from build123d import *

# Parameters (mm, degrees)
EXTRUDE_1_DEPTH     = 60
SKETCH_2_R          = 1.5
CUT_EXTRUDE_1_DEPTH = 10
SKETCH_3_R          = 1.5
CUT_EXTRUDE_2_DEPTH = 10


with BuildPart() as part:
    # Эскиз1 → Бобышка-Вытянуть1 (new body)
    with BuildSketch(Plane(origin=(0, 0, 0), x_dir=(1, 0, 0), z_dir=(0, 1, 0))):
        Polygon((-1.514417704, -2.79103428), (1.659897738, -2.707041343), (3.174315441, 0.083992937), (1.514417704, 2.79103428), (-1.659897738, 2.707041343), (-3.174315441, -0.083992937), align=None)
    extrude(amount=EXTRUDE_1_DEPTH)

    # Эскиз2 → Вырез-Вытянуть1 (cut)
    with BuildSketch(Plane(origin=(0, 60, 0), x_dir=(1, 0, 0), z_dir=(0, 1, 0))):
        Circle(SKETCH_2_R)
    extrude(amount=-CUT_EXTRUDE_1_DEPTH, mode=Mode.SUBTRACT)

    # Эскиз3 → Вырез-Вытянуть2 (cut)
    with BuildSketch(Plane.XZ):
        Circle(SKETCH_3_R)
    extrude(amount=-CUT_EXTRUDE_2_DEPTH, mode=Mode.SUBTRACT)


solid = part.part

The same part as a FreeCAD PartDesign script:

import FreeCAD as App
import Part
import Sketcher
from FreeCAD import Vector

doc = App.newDocument("Part")
body = doc.addObject("PartDesign::Body", "Body")

sketch1 = doc.addObject("Sketcher::SketchObject", "Sketch")
body.addObject(sketch1)
sketch1.AttachmentSupport = (doc.XZ_Plane, [""])
sketch1.MapMode = "FlatFace"
sketch1.addGeometry([
    Part.LineSegment(Vector(-1.514418, 2.791034, 0), Vector(1.659898, 2.707041, 0)),
    Part.LineSegment(Vector(1.659898, 2.707041, 0), Vector(3.174315, -0.083993, 0)),
    Part.LineSegment(Vector(3.174315, -0.083993, 0), Vector(1.514418, -2.791034, 0)),
    Part.LineSegment(Vector(1.514418, -2.791034, 0), Vector(-1.659898, -2.707041, 0)),
    Part.LineSegment(Vector(-1.659898, -2.707041, 0), Vector(-3.174315, 0.083993, 0)),
    Part.LineSegment(Vector(-3.174315, 0.083993, 0), Vector(-1.514418, 2.791034, 0)),
], False)
sketch1.addConstraint([
    Sketcher.Constraint("Coincident", 0, 2, 1, 1),
    Sketcher.Constraint("Coincident", 1, 2, 2, 1),
    Sketcher.Constraint("Coincident", 2, 2, 3, 1),
    Sketcher.Constraint("Coincident", 3, 2, 4, 1),
    Sketcher.Constraint("Coincident", 4, 2, 5, 1),
    Sketcher.Constraint("Coincident", 5, 2, 0, 1),
    Sketcher.Constraint("Symmetric", 0, 2, 3, 2, -1, 1),
    Sketcher.Constraint("Symmetric", 1, 2, 4, 2, -1, 1),
    Sketcher.Constraint("Symmetric", 2, 2, 5, 2, -1, 1),
    Sketcher.Constraint("Equal", 0, 1),
    Sketcher.Constraint("Equal", 1, 2),
    Sketcher.Constraint("DistanceY", -1, 1, 0, 2, 2.707041),
    Sketcher.Constraint("DistanceY", 2, 2, 1, 2, 2.707041),
    Sketcher.Constraint("DistanceX", 2, 2, 0, 2, 0.14548),
    Sketcher.Constraint("DistanceY", 3, 2, 1, 2, 2.623048),
])
pad1 = doc.addObject("PartDesign::Pad", "Pad")
body.addObject(pad1)
pad1.Profile = sketch1
pad1.Length = 60
pad1.Reversed = True

sketch2 = doc.addObject("Sketcher::SketchObject", "Sketch001")
body.addObject(sketch2)
sketch2.AttachmentSupport = (doc.XZ_Plane, [""])
sketch2.MapMode = "FlatFace"
sketch2.AttachmentOffset = App.Placement(Vector(0, 0, -60), App.Rotation())
sketch2.addGeometry(Part.Circle(Vector(0, 0, 0), Vector(0, 0, 1), 1.5), False)
sketch2.addConstraint([
    Sketcher.Constraint("Coincident", 0, 3, -1, 1),
    Sketcher.Constraint("Diameter", 0, 3.0),
])
pocket1 = doc.addObject("PartDesign::Pocket", "Pocket")
body.addObject(pocket1)
pocket1.Profile = sketch2
pocket1.Length = 10
pocket1.Reversed = True

sketch3 = doc.addObject("Sketcher::SketchObject", "Sketch002")
body.addObject(sketch3)
sketch3.AttachmentSupport = (doc.XZ_Plane, [""])
sketch3.MapMode = "FlatFace"
sketch3.addGeometry(Part.Circle(Vector(0, 0, 0), Vector(0, 0, 1), 1.5), False)
sketch3.addConstraint([
    Sketcher.Constraint("Coincident", 0, 3, -1, 1),
    Sketcher.Constraint("Diameter", 0, 3.0),
])
pocket2 = doc.addObject("PartDesign::Pocket", "Pocket001")
body.addObject(pocket2)
pocket2.Profile = sketch3
pocket2.Length = 10

doc.recompute()
